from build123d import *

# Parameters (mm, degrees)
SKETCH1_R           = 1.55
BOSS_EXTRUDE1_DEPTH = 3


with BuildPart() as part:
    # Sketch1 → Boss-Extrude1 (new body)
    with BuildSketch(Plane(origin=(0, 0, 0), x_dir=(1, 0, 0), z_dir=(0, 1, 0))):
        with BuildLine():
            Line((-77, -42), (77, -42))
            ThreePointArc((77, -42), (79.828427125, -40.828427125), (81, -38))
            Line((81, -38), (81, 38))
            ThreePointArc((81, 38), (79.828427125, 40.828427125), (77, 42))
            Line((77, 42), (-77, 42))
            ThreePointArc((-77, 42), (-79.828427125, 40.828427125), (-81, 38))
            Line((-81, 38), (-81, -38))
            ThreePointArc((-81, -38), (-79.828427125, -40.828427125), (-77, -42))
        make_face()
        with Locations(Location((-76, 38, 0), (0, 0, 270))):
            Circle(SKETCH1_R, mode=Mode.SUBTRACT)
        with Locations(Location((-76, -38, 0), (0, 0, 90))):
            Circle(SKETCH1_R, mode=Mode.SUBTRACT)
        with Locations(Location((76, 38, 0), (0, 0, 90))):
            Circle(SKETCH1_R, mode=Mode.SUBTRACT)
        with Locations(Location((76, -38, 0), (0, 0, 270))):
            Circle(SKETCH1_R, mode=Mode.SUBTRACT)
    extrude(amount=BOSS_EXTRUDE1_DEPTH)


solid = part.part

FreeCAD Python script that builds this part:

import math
import FreeCAD as App
import Part
import Sketcher

V = App.Vector
Q = App.Units.Quantity

doc = App.newDocument("Part")
params = doc.addObject("Spreadsheet::Sheet", "Params")
for row, (alias, value) in enumerate([
    ("sketch1_radius", "4 mm"),
    ("sketch1_diameter", "3.1 mm"),
    ("sketch1_width", "154 mm"),
    ("sketch1_height", "76 mm"),
    ("pad1_length", "3 mm"),
], start=1):
    params.set(f"A{row}", alias)
    params.set(f"B{row}", "=" + value)
    params.setAlias(f"B{row}", alias)

body = doc.addObject("PartDesign::Body", "Body")

# Sketch on XZ plane
sketch1 = doc.addObject("Sketcher::SketchObject", "Sketch")
body.addObject(sketch1)
sketch1.AttachmentSupport = (doc.XZ_Plane, [""])
sketch1.MapMode = "FlatFace"
sketch1.addGeometry(Part.LineSegment(V(-77, 42, 0), V(77, 42, 0)), False)
sketch1.addGeometry(Part.ArcOfCircle(Part.Circle(V(77, 38, 0), V(0, 0, 1), 4), math.radians(0), math.radians(90)), False)
sketch1.addGeometry(Part.LineSegment(V(81, 38, 0), V(81, -38, 0)), False)
sketch1.addGeometry(Part.ArcOfCircle(Part.Circle(V(77, -38, 0), V(0, 0, 1), 4), math.radians(-90), math.radians(0)), False)
sketch1.addGeometry(Part.LineSegment(V(77, -42, 0), V(-77, -42, 0)), False)
sketch1.addGeometry(Part.ArcOfCircle(Part.Circle(V(-77, -38, 0), V(0, 0, 1), 4), math.radians(180), math.radians(270)), False)
sketch1.addGeometry(Part.LineSegment(V(-81, -38, 0), V(-81, 38, 0)), False)
sketch1.addGeometry(Part.ArcOfCircle(Part.Circle(V(-77, 38, 0), V(0, 0, 1), 4), math.radians(90), math.radians(180)), False)
sketch1.addGeometry(Part.Circle(V(-76, 38, 0), V(0, 0, 1), 1.6), False)
sketch1.addGeometry(Part.Circle(V(76, 38, 0), V(0, 0, 1), 1.6), False)
sketch1.addGeometry(Part.Circle(V(-76, -38, 0), V(0, 0, 1), 1.6), False)
sketch1.addGeometry(Part.Circle(V(76, -38, 0), V(0, 0, 1), 1.6), False)
sketch1.addConstraint(Sketcher.Constraint("Tangent", 0, 2, 1, 2))
sketch1.addConstraint(Sketcher.Constraint("Tangent", 1, 1, 2, 1))
sketch1.addConstraint(Sketcher.Constraint("Tangent", 2, 2, 3, 2))
sketch1.addConstraint(Sketcher.Constraint("Tangent", 3, 1, 4, 1))
sketch1.addConstraint(Sketcher.Constraint("Tangent", 4, 2, 5, 2))
sketch1.addConstraint(Sketcher.Constraint("Tangent", 5, 1, 6, 1))
sketch1.addConstraint(Sketcher.Constraint("Tangent", 6, 2, 7, 2))
sketch1.addConstraint(Sketcher.Constraint("Tangent", 7, 1, 0, 1))
sketch1.addConstraint(Sketcher.Constraint("Horizontal", 0))
sketch1.addConstraint(Sketcher.Constraint("Vertical", 2))
sketch1.addConstraint(Sketcher.Constraint("Horizontal", 4))
sketch1.addConstraint(Sketcher.Constraint("Vertical", 6))
sketch1.addConstraint(Sketcher.Constraint("Equal", 1, 3))
sketch1.addConstraint(Sketcher.Constraint("Equal", 3, 5))
sketch1.addConstraint(Sketcher.Constraint("Equal", 5, 7))
sketch1.addConstraint(Sketcher.Constraint("Equal", 8, 9))
sketch1.addConstraint(Sketcher.Constraint("Equal", 9, 10))
sketch1.addConstraint(Sketcher.Constraint("Equal", 10, 11))
sketch1.addConstraint(Sketcher.Constraint("Symmetric", 1, 3, 5, 3, -1, 1))
sketch1.addConstraint(Sketcher.Constraint("Symmetric", 9, 3, 10, 3, -1, 1))
sketch1.addConstraint(Sketcher.Constraint("Symmetric", 8, 3, 11, 3, -1, 1))
sketch1.addConstraint(Sketcher.Constraint("Symmetric", 8, 3, 9, 3, -2))
sketch1.addConstraint(Sketcher.Constraint("Horizontal", 7, 3, 8, 3))
sketch1.addConstraint(Sketcher.Constraint("Radius", 1, Q("4 mm")))
sketch1.addConstraint(Sketcher.Constraint("Diameter", 8, Q("3.1 mm")))
sketch1.addConstraint(Sketcher.Constraint("DistanceX", 0, 1, 0, 2, Q("154 mm")))
sketch1.addConstraint(Sketcher.Constraint("DistanceY", 2, 2, 2, 1, Q("76 mm")))
sketch1.addConstraint(Sketcher.Constraint("DistanceX", 8, 3, -1, 1, Q("76 mm")))
sketch1.setExpression("Constraints[23]", "Params.sketch1_radius")
sketch1.setExpression("Constraints[24]", "Params.sketch1_diameter")
sketch1.setExpression("Constraints[25]", "Params.sketch1_width")
sketch1.setExpression("Constraints[26]", "Params.sketch1_height")
pad1 = doc.addObject("PartDesign::Pad", "Pad")
body.addObject(pad1)
pad1.Profile = sketch1
pad1.setExpression("Length", "Params.pad1_length")
pad1.Reversed = True

doc.recompute()
